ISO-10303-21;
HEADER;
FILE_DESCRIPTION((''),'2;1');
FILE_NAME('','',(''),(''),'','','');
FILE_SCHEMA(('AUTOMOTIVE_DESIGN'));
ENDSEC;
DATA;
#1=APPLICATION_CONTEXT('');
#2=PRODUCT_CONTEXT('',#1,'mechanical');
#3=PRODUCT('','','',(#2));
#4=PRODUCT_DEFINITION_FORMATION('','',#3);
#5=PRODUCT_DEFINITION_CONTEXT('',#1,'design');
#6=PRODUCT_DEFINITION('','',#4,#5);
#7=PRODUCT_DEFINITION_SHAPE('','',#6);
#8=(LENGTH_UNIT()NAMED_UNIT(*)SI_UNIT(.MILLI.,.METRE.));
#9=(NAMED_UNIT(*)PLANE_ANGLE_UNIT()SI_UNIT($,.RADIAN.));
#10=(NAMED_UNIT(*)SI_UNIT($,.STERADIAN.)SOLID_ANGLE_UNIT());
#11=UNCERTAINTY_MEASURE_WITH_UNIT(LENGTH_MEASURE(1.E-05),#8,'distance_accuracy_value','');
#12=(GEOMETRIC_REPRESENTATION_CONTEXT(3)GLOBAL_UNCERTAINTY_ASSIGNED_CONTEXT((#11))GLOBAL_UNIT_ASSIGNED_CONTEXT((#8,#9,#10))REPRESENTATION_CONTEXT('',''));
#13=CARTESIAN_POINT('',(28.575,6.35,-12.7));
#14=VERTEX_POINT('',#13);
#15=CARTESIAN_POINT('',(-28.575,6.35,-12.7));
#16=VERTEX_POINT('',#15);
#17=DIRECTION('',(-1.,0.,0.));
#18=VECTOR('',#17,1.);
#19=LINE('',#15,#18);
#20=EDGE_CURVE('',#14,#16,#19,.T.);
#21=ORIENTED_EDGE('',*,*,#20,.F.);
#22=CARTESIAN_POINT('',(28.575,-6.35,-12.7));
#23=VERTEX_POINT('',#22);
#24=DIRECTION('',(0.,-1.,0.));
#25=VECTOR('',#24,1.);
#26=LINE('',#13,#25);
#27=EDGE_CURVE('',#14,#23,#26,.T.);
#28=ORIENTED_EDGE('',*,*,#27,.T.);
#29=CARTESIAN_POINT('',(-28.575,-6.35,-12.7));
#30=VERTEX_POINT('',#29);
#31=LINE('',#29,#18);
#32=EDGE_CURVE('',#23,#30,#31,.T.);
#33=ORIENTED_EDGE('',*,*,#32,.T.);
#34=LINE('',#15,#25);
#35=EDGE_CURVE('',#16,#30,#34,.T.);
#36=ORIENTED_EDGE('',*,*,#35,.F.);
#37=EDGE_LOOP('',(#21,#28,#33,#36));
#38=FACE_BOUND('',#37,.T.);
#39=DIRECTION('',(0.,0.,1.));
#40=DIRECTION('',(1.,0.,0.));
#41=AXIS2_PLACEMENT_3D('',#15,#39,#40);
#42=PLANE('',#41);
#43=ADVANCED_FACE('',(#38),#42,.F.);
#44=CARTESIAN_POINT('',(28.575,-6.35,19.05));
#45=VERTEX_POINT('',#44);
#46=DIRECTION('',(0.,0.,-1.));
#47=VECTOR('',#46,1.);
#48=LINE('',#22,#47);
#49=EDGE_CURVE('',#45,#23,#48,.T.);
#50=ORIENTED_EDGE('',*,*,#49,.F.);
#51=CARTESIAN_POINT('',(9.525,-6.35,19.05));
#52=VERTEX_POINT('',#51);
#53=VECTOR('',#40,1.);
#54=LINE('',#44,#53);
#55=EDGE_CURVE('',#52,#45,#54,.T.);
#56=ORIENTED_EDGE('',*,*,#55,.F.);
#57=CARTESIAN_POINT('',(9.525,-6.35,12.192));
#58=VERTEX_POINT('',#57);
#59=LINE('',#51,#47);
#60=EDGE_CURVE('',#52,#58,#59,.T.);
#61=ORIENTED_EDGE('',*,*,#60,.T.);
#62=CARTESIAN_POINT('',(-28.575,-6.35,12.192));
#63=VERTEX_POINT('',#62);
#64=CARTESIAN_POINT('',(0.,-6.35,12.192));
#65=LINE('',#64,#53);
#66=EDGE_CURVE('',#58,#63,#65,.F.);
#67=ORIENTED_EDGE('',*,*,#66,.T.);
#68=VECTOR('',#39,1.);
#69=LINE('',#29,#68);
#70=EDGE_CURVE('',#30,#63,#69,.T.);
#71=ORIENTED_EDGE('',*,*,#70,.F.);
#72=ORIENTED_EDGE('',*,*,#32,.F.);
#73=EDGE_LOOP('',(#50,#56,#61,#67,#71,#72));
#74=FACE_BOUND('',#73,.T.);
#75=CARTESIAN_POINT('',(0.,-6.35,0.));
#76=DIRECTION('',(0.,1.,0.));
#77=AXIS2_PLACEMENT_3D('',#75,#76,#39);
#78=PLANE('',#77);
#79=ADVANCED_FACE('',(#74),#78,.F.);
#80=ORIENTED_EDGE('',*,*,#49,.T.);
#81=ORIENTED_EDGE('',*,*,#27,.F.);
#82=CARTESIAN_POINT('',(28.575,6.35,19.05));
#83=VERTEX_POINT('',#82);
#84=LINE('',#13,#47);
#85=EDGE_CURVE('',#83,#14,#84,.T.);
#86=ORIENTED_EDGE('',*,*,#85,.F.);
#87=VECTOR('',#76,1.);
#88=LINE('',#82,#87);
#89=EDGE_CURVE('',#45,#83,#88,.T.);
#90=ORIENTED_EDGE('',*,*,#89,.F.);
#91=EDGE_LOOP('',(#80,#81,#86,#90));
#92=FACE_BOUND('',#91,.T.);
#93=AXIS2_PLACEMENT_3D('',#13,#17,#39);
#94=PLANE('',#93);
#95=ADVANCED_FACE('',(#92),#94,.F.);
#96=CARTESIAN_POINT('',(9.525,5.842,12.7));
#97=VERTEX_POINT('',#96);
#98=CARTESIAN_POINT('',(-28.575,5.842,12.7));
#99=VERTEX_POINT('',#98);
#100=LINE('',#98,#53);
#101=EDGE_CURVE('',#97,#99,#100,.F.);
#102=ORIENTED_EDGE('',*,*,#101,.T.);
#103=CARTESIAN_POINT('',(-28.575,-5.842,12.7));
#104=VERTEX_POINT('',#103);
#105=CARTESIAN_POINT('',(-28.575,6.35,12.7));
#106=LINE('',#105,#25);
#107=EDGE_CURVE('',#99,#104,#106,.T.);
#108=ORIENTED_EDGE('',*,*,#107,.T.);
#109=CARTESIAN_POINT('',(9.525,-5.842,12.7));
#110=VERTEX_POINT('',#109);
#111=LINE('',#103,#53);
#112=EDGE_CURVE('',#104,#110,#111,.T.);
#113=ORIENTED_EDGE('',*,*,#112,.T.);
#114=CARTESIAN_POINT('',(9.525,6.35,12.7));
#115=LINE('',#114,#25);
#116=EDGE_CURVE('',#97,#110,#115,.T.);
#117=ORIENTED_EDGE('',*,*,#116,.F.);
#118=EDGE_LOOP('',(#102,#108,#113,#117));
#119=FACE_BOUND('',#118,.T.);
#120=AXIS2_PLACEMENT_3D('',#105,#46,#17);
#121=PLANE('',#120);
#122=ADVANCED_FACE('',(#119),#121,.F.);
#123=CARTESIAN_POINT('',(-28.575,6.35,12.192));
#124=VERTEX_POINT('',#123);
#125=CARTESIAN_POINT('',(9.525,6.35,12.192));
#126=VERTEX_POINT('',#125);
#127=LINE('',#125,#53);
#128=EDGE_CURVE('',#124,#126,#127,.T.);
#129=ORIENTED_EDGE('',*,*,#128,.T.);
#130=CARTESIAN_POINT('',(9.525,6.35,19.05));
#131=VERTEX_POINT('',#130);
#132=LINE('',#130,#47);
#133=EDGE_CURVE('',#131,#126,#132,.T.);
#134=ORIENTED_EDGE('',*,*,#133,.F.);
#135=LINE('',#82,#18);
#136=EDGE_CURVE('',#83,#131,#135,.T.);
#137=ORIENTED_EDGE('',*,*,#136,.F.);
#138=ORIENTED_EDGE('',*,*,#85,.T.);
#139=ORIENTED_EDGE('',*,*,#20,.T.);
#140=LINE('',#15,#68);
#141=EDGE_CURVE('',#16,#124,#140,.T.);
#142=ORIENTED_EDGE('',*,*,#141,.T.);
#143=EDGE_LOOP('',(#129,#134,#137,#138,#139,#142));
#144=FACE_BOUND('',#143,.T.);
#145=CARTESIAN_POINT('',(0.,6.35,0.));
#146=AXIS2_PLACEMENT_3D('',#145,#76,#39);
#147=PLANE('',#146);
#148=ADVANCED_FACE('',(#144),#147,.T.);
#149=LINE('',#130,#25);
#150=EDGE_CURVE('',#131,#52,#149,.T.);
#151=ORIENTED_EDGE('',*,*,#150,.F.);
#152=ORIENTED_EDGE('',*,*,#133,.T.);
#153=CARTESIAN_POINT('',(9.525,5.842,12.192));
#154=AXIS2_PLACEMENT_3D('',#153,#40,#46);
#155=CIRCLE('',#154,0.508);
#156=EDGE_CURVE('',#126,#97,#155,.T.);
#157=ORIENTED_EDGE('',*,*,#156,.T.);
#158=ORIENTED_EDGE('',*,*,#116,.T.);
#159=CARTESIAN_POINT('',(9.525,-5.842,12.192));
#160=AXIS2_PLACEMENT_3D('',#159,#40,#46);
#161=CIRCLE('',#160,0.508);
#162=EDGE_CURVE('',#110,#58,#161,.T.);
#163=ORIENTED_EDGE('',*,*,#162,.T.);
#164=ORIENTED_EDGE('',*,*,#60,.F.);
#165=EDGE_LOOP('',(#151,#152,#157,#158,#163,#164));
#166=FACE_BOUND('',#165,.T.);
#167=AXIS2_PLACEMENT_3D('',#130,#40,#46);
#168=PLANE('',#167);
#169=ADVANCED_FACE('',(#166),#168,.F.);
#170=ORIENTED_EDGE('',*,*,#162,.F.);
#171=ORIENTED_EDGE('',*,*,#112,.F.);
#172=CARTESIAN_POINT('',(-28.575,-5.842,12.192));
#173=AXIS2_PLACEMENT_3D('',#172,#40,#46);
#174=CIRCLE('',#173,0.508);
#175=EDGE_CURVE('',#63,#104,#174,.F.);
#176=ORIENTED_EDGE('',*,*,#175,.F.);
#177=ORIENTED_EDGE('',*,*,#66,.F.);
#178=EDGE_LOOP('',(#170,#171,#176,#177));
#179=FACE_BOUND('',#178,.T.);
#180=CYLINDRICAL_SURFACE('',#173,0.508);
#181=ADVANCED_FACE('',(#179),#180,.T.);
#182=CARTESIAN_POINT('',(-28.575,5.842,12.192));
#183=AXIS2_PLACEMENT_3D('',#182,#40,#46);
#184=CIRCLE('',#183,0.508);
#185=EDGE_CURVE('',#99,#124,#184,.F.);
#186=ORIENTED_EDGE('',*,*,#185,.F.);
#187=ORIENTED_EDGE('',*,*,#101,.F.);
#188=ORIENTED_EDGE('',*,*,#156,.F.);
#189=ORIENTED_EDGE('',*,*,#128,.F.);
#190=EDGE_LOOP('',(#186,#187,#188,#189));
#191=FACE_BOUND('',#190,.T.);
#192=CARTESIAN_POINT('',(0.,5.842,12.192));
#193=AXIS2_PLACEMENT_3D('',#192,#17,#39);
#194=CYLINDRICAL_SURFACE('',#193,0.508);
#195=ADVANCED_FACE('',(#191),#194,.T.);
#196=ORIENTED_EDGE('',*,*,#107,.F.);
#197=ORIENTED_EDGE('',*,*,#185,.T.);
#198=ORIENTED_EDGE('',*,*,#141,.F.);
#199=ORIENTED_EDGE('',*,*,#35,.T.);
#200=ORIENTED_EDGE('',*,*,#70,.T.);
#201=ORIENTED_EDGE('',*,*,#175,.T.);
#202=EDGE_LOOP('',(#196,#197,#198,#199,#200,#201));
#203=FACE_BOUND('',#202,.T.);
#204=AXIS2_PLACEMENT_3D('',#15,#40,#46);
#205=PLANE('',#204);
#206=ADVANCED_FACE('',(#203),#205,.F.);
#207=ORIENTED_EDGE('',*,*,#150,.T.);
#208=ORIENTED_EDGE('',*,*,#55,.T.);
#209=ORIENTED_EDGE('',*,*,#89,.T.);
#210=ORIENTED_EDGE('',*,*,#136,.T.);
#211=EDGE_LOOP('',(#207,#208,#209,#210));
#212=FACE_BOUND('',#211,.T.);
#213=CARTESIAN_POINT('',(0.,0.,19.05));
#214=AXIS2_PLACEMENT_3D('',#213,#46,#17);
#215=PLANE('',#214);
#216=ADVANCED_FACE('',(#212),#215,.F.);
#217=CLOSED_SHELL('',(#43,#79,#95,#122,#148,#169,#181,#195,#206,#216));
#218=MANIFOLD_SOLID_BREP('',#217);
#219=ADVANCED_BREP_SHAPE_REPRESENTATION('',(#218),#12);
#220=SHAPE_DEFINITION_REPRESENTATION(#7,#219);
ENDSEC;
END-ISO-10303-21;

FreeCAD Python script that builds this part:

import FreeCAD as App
import Part
import Sketcher
from FreeCAD import Vector
Q = App.Units.Quantity


def edges_at(feature, points):
    """Names of the edges that pass closest to the given points."""
    edges = feature.Shape.Edges
    near = lambda p: min(range(len(edges)), key=lambda i: edges[i].distToShape(Part.Vertex(*p))[0])
    return sorted({f"Edge{near(p) + 1}" for p in points})


def add_polygon(sketch, points):
    """Adds a closed chain of lines whose ends are joined by coincident constraints."""
    first, n = sketch.GeometryCount, len(points)
    for a, b in zip(points, points[1:] + points[:1]):
        sketch.addGeometry(Part.LineSegment(App.Vector(*a, 0), App.Vector(*b, 0)), False)
    for i in range(n):
        sketch.addConstraint(Sketcher.Constraint("Coincident", first + i, 2, first + (i + 1) % n, 1))

doc = App.newDocument("Part")
body = doc.addObject("PartDesign::Body", "Body")

sketch1 = body.newObject("Sketcher::SketchObject", "Sketch")
sketch1.AttachmentSupport = (doc.getObject("XZ_Plane"), [""])
sketch1.MapMode = "FlatFace"
add_polygon(sketch1, [(-28.575, -12.7), (-28.575, 12.7), (28.575, 12.7), (28.575, -12.7)])
sketch1.addConstraint([
    Sketcher.Constraint("Vertical", 0),
    Sketcher.Constraint("Horizontal", 1),
    Sketcher.Constraint("Vertical", 2),
    Sketcher.Constraint("Horizontal", 3),
    Sketcher.Constraint("Symmetric", 0, 2, 2, 2, -1, 1),
    Sketcher.Constraint("DistanceY", 0, 1, 0, 2, Q("1 in")),
    Sketcher.Constraint("DistanceX", 1, 1, 1, 2, Q("2.25 in")),
])
pad1 = body.newObject("PartDesign::Pad", "Pad")
pad1.Profile = sketch1
pad1.Length = Q("0.5 in")
pad1.Midplane = True

sketch2 = body.newObject("Sketcher::SketchObject", "Sketch001")
sketch2.AttachmentSupport = (doc.getObject("XY_Plane"), [""])
sketch2.MapMode = "FlatFace"
sketch2.AttachmentOffset = App.Placement(Vector(0, 0, 0.5 * 25.4), App.Rotation())
add_polygon(sketch2, [(9.525, 6.35), (9.525, -6.35), (28.575, -6.35), (28.575, 6.35)])
sketch2.addConstraint([
    Sketcher.Constraint("Vertical", 0),
    Sketcher.Constraint("Horizontal", 1),
    Sketcher.Constraint("Vertical", 2),
    Sketcher.Constraint("Horizontal", 3),
    Sketcher.Constraint("DistanceY", 0, 2, 0, 1, Q("0.5 in")),
    Sketcher.Constraint("DistanceX", 1, 1, 1, 2, Q("0.75 in")),
    Sketcher.Constraint("DistanceY", 0, 2, -1, 1, Q("0.25 in")),
    Sketcher.Constraint("DistanceX", -1, 1, 0, 2, Q("0.375 in")),
])
pad2 = body.newObject("PartDesign::Pad", "Pad001")
pad2.Profile = sketch2
pad2.Length = Q("0.25 in")
doc.recompute()

fillet = body.newObject("PartDesign::Fillet", "Fillet")
fillet.Base = (pad2, edges_at(pad2, [(-9.525, 6.35, 12.7), (-9.525, -6.35, 12.7)]))
fillet.Radius = Q("0.02 in")

doc.recompute()
